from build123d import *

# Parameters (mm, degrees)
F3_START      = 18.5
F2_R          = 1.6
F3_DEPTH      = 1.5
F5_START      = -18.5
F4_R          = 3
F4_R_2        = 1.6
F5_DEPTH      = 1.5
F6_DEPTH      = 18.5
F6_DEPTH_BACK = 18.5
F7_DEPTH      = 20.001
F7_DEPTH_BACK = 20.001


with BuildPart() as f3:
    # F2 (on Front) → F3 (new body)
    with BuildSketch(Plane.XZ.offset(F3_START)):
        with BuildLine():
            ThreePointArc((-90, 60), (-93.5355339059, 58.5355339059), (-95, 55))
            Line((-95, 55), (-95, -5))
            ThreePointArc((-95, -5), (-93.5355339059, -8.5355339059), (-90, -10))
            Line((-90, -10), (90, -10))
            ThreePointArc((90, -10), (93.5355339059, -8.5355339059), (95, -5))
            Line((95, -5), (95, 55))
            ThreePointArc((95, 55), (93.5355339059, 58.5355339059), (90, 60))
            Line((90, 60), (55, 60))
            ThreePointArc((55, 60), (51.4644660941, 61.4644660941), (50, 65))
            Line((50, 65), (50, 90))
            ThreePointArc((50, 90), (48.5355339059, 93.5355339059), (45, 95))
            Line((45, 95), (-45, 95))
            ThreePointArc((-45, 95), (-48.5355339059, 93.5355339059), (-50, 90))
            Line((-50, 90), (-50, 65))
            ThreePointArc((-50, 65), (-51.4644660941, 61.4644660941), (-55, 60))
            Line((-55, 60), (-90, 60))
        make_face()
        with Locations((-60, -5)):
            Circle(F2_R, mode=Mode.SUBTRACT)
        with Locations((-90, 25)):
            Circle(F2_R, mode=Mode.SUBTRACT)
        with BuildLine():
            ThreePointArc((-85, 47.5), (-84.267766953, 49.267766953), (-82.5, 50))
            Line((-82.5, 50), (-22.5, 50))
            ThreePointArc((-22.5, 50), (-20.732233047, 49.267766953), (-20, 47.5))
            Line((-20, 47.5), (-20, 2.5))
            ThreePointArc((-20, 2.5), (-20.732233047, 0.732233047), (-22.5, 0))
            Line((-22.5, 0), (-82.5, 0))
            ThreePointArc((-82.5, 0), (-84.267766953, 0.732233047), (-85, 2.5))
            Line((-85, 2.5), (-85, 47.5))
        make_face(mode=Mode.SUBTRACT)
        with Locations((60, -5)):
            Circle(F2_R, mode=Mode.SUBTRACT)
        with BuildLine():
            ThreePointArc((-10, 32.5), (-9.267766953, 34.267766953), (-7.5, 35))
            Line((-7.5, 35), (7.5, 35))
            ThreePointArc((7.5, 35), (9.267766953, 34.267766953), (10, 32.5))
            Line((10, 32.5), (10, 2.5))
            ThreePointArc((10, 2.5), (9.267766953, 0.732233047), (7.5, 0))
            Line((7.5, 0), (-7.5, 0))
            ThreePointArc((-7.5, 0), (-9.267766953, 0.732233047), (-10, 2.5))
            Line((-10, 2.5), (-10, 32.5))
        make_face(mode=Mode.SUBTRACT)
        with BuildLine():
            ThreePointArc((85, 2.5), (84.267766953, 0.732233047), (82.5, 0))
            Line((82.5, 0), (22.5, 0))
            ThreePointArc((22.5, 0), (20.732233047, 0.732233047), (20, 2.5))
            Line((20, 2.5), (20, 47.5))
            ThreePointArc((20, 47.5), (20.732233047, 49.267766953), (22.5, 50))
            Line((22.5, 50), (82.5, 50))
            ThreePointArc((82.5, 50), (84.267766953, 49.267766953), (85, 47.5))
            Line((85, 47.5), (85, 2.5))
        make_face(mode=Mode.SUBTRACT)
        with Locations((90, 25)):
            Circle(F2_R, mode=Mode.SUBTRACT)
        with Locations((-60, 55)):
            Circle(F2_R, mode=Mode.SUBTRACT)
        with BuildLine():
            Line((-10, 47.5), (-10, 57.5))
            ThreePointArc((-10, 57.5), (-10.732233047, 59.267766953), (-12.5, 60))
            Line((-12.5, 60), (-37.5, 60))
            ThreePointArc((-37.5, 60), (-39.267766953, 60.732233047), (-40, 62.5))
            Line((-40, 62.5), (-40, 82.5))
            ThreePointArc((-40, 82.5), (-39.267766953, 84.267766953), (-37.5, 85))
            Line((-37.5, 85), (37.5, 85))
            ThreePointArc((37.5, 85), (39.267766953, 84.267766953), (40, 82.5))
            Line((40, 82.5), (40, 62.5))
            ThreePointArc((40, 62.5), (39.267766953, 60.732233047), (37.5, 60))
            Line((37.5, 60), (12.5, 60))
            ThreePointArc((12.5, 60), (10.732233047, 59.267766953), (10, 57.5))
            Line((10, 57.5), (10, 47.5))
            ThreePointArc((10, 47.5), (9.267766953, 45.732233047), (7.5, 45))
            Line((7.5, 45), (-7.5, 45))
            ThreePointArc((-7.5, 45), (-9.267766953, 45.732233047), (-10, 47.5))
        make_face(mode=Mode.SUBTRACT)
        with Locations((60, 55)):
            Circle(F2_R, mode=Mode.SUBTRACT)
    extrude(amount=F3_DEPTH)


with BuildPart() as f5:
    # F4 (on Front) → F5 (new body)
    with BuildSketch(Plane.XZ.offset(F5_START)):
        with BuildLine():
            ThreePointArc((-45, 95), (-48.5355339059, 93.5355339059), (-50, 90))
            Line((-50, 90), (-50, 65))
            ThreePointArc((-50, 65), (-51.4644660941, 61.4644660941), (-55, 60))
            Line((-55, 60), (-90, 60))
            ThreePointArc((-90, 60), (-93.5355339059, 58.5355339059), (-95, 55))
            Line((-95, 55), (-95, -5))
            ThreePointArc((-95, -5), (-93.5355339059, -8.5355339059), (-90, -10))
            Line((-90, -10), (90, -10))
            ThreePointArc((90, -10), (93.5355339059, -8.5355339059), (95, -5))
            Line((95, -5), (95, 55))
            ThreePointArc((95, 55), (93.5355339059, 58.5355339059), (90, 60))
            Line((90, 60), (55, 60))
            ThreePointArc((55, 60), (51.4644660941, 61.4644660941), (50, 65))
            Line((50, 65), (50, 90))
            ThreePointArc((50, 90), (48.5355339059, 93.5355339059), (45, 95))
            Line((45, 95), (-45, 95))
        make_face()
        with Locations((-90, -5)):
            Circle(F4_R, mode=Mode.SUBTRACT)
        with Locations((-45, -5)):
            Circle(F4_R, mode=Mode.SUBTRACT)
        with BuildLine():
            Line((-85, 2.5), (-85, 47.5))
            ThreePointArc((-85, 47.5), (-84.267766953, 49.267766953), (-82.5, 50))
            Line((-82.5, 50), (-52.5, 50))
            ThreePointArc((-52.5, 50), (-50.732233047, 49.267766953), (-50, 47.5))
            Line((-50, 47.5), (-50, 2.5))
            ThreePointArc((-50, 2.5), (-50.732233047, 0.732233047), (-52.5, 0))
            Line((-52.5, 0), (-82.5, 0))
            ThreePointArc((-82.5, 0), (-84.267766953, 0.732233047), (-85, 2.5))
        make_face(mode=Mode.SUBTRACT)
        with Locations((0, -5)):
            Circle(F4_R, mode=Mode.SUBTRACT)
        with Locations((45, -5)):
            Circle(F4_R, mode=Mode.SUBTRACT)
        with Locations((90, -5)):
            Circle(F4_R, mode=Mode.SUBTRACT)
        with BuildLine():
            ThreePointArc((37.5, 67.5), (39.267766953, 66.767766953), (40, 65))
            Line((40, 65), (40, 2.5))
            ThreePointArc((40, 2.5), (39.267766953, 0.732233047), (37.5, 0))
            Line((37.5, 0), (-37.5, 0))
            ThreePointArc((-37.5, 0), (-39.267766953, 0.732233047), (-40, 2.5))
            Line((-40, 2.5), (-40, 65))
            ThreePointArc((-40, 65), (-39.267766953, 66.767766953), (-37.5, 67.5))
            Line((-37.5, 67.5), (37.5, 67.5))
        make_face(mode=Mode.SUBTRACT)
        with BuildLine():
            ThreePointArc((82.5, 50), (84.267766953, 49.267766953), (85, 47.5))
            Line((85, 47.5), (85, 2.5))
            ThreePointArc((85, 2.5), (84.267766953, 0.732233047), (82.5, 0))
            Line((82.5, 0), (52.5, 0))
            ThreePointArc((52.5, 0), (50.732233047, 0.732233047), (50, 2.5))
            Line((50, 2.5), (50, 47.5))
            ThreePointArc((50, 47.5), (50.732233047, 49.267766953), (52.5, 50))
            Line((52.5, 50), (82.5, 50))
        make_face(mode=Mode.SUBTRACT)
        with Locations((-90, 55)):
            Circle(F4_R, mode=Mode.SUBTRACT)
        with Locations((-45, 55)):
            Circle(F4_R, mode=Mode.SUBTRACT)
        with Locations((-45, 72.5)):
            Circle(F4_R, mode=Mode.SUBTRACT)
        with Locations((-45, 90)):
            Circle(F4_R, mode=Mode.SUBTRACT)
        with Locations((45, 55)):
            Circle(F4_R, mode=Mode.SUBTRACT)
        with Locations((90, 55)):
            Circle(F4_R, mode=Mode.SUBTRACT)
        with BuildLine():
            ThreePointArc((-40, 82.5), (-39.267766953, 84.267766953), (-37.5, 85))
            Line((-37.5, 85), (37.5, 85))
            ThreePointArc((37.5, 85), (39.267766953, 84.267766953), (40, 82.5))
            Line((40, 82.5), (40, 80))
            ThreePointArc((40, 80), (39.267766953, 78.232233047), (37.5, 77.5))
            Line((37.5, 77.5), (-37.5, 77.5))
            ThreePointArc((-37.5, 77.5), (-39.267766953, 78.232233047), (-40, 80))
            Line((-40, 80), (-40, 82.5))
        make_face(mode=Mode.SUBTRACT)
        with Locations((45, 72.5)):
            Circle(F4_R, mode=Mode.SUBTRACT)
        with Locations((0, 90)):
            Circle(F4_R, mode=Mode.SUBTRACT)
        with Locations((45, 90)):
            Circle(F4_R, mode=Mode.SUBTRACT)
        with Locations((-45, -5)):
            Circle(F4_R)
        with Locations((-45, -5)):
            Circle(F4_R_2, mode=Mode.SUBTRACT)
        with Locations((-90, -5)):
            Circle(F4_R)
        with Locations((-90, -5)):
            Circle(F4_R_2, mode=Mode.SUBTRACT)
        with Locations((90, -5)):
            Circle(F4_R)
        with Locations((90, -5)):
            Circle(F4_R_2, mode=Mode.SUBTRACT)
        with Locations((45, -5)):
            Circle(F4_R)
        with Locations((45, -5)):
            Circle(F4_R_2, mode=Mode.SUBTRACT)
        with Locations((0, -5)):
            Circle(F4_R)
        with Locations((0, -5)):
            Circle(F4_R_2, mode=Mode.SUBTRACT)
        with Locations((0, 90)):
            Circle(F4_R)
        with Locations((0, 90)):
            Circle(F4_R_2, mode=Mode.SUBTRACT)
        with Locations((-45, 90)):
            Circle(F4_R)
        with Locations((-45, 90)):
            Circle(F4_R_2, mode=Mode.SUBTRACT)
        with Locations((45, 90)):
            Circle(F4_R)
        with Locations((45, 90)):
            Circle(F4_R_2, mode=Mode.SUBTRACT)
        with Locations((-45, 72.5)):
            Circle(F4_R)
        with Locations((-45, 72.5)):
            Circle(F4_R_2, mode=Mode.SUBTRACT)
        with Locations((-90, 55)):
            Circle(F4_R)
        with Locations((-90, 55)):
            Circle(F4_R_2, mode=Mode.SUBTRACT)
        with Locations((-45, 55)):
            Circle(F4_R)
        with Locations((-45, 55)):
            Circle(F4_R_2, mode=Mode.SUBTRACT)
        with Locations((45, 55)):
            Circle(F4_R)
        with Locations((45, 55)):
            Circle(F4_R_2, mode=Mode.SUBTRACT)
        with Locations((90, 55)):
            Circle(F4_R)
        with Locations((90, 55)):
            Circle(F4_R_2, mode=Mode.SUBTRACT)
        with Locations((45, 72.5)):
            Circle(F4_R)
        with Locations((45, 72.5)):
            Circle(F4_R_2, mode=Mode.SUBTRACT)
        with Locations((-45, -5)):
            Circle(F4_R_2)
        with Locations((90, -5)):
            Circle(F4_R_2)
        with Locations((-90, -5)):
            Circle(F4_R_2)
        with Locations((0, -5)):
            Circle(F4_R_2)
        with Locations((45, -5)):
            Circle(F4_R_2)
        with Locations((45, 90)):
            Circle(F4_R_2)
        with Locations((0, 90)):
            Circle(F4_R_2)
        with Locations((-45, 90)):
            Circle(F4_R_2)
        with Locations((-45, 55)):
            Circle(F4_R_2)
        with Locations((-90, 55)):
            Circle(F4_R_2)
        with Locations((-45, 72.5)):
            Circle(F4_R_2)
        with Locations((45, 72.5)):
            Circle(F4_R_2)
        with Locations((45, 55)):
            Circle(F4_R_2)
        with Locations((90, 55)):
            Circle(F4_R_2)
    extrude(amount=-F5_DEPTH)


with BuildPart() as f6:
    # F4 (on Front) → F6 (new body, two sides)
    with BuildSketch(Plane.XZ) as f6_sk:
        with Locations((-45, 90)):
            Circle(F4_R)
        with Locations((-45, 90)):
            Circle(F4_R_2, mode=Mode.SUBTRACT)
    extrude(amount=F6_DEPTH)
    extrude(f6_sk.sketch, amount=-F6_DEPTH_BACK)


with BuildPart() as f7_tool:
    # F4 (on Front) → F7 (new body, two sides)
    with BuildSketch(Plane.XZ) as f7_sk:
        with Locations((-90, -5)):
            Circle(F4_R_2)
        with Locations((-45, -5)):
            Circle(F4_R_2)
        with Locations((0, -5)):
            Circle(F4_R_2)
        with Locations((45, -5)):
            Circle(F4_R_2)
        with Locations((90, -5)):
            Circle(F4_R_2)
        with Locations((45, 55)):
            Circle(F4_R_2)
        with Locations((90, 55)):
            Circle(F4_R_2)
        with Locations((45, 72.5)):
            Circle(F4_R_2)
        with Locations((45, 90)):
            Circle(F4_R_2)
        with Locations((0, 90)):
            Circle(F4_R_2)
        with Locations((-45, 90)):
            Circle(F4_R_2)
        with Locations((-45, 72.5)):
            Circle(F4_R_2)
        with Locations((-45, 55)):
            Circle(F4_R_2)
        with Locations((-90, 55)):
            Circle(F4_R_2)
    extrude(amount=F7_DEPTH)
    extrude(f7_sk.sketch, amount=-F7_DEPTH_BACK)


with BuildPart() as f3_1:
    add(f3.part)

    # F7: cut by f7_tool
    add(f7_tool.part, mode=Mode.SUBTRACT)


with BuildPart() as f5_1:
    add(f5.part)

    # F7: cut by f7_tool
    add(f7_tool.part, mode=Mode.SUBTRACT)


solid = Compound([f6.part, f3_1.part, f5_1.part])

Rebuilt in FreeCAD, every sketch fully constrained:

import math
import FreeCAD as App
import Part
import Sketcher

V = App.Vector
Q = App.Units.Quantity

doc = App.newDocument("Part")
body = doc.addObject("PartDesign::Body", "Body")

# Sketch on XZ plane
sketch1 = doc.addObject("Sketcher::SketchObject", "Sketch")
body.addObject(sketch1)
sketch1.AttachmentSupport = (doc.XZ_Plane, [""])
sketch1.MapMode = "FlatFace"
sketch1.AttachmentOffset = App.Placement(V(0, 0, 18.5), App.Rotation())
sketch1.addGeometry(Part.ArcOfCircle(Part.Circle(V(-90, 55, 0), V(0, 0, 1), 5), math.radians(90), math.radians(180)), False)
sketch1.addGeometry(Part.LineSegment(V(-95, 55, 0), V(-95, -5, 0)), False)
sketch1.addGeometry(Part.ArcOfCircle(Part.Circle(V(-90, -5, 0), V(0, 0, 1), 5), math.radians(180), math.radians(270)), False)
sketch1.addGeometry(Part.LineSegment(V(-90, -10, 0), V(90, -10, 0)), False)
sketch1.addGeometry(Part.ArcOfCircle(Part.Circle(V(90, -5, 0), V(0, 0, 1), 5), math.radians(-90), math.radians(0)), False)
sketch1.addGeometry(Part.LineSegment(V(95, -5, 0), V(95, 55, 0)), False)
sketch1.addGeometry(Part.ArcOfCircle(Part.Circle(V(90, 55, 0), V(0, 0, 1), 5), math.radians(0), math.radians(90)), False)
sketch1.addGeometry(Part.LineSegment(V(90, 60, 0), V(55, 60, 0)), False)
sketch1.addGeometry(Part.ArcOfCircle(Part.Circle(V(55, 65, 0), V(0, 0, 1), 5), math.radians(180), math.radians(270)), False)
sketch1.addGeometry(Part.LineSegment(V(50, 65, 0), V(50, 90, 0)), False)
sketch1.addGeometry(Part.ArcOfCircle(Part.Circle(V(45, 90, 0), V(0, 0, 1), 5), math.radians(0), math.radians(90)), False)
sketch1.addGeometry(Part.LineSegment(V(45, 95, 0), V(-45, 95, 0)), False)
sketch1.addGeometry(Part.ArcOfCircle(Part.Circle(V(-45, 90, 0), V(0, 0, 1), 5), math.radians(90), math.radians(180)), False)
sketch1.addGeometry(Part.LineSegment(V(-50, 90, 0), V(-50, 65, 0)), False)
sketch1.addGeometry(Part.ArcOfCircle(Part.Circle(V(-55, 65, 0), V(0, 0, 1), 5), math.radians(-90), math.radians(0)), False)
sketch1.addGeometry(Part.LineSegment(V(-55, 60, 0), V(-90, 60, 0)), False)
sketch1.addGeometry(Part.Circle(V(-60, -5, 0), V(0, 0, 1), 1.6), False)
sketch1.addGeometry(Part.Circle(V(-90, 25, 0), V(0, 0, 1), 1.6), False)
sketch1.addGeometry(Part.LineSegment(V(-85, 2.5, 0), V(-85, 47.5, 0)), False)
sketch1.addGeometry(Part.ArcOfCircle(Part.Circle(V(-82.5, 47.5, 0), V(0, 0, 1), 2.5), math.radians(90), math.radians(180)), False)
sketch1.addGeometry(Part.LineSegment(V(-82.5, 50, 0), V(-22.5, 50, 0)), False)
sketch1.addGeometry(Part.ArcOfCircle(Part.Circle(V(-22.5, 47.5, 0), V(0, 0, 1), 2.5), math.radians(0), math.radians(90)), False)
sketch1.addGeometry(Part.LineSegment(V(-20, 47.5, 0), V(-20, 2.5, 0)), False)
sketch1.addGeometry(Part.ArcOfCircle(Part.Circle(V(-22.5, 2.5, 0), V(0, 0, 1), 2.5), math.radians(-90), math.radians(0)), False)
sketch1.addGeometry(Part.LineSegment(V(-22.5, 0, 0), V(-82.5, 0, 0)), False)
sketch1.addGeometry(Part.ArcOfCircle(Part.Circle(V(-82.5, 2.5, 0), V(0, 0, 1), 2.5), math.radians(180), math.radians(270)), False)
sketch1.addGeometry(Part.Circle(V(60, -5, 0), V(0, 0, 1), 1.6), False)
sketch1.addGeometry(Part.LineSegment(V(-10, 2.5, 0), V(-10, 32.5, 0)), False)
sketch1.addGeometry(Part.ArcOfCircle(Part.Circle(V(-7.5, 32.5, 0), V(0, 0, 1), 2.5), math.radians(90), math.radians(180)), False)
sketch1.addGeometry(Part.LineSegment(V(-7.5, 35, 0), V(7.5, 35, 0)), False)
sketch1.addGeometry(Part.ArcOfCircle(Part.Circle(V(7.5, 32.5, 0), V(0, 0, 1), 2.5), math.radians(0), math.radians(90)), False)
sketch1.addGeometry(Part.LineSegment(V(10, 32.5, 0), V(10, 2.5, 0)), False)
sketch1.addGeometry(Part.ArcOfCircle(Part.Circle(V(7.5, 2.5, 0), V(0, 0, 1), 2.5), math.radians(-90), math.radians(0)), False)
sketch1.addGeometry(Part.LineSegment(V(7.5, 0, 0), V(-7.5, 0, 0)), False)
sketch1.addGeometry(Part.ArcOfCircle(Part.Circle(V(-7.5, 2.5, 0), V(0, 0, 1), 2.5), math.radians(180), math.radians(270)), False)
sketch1.addGeometry(Part.LineSegment(V(85, 47.5, 0), V(85, 2.5, 0)), False)
sketch1.addGeometry(Part.ArcOfCircle(Part.Circle(V(82.5, 2.5, 0), V(0, 0, 1), 2.5), math.radians(-90), math.radians(0)), False)
sketch1.addGeometry(Part.LineSegment(V(82.5, 0, 0), V(22.5, 0, 0)), False)
sketch1.addGeometry(Part.ArcOfCircle(Part.Circle(V(22.5, 2.5, 0), V(0, 0, 1), 2.5), math.radians(180), math.radians(270)), False)
sketch1.addGeometry(Part.LineSegment(V(20, 2.5, 0), V(20, 47.5, 0)), False)
sketch1.addGeometry(Part.ArcOfCircle(Part.Circle(V(22.5, 47.5, 0), V(0, 0, 1), 2.5), math.radians(90), math.radians(180)), False)
sketch1.addGeometry(Part.LineSegment(V(22.5, 50, 0), V(82.5, 50, 0)), False)
sketch1.addGeometry(Part.ArcOfCircle(Part.Circle(V(82.5, 47.5, 0), V(0, 0, 1), 2.5), math.radians(0), math.radians(90)), False)
sketch1.addGeometry(Part.Circle(V(90, 25, 0), V(0, 0, 1), 1.6), False)
sketch1.addGeometry(Part.Circle(V(-60, 55, 0), V(0, 0, 1), 1.6), False)
sketch1.addGeometry(Part.Circle(V(60, 55, 0), V(0, 0, 1), 1.6), False)
sketch1.addGeometry(Part.ArcOfCircle(Part.Circle(V(-7.5, 47.5, 0), V(0, 0, 1), 2.5), math.radians(180), math.radians(270)), False)
sketch1.addGeometry(Part.LineSegment(V(-10, 47.5, 0), V(-10, 57.5, 0)), False)
sketch1.addGeometry(Part.ArcOfCircle(Part.Circle(V(-12.5, 57.5, 0), V(0, 0, 1), 2.5), math.radians(0), math.radians(90)), False)
sketch1.addGeometry(Part.LineSegment(V(-12.5, 60, 0), V(-37.5, 60, 0)), False)
sketch1.addGeometry(Part.ArcOfCircle(Part.Circle(V(-37.5, 62.5, 0), V(0, 0, 1), 2.5), math.radians(180), math.radians(270)), False)
sketch1.addGeometry(Part.LineSegment(V(-40, 62.5, 0), V(-40, 82.5, 0)), False)
sketch1.addGeometry(Part.ArcOfCircle(Part.Circle(V(-37.5, 82.5, 0), V(0, 0, 1), 2.5), math.radians(90), math.radians(180)), False)
sketch1.addGeometry(Part.LineSegment(V(-37.5, 85, 0), V(37.5, 85, 0)), False)
sketch1.addGeometry(Part.ArcOfCircle(Part.Circle(V(37.5, 82.5, 0), V(0, 0, 1), 2.5), math.radians(0), math.radians(90)), False)
sketch1.addGeometry(Part.LineSegment(V(40, 82.5, 0), V(40, 62.5, 0)), False)
sketch1.addGeometry(Part.ArcOfCircle(Part.Circle(V(37.5, 62.5, 0), V(0, 0, 1), 2.5), math.radians(-90), math.radians(0)), False)
sketch1.addGeometry(Part.LineSegment(V(37.5, 60, 0), V(12.5, 60, 0)), False)
sketch1.addGeometry(Part.ArcOfCircle(Part.Circle(V(12.5, 57.5, 0), V(0, 0, 1), 2.5), math.radians(90), math.radians(180)), False)
sketch1.addGeometry(Part.LineSegment(V(10, 57.5, 0), V(10, 47.5, 0)), False)
sketch1.addGeometry(Part.ArcOfCircle(Part.Circle(V(7.5, 47.5, 0), V(0, 0, 1), 2.5), math.radians(-90), math.radians(0)), False)
sketch1.addGeometry(Part.LineSegment(V(7.5, 45, 0), V(-7.5, 45, 0)), False)
sketch1.addConstraint(Sketcher.Constraint("Tangent", 0, 2, 1, 1))
sketch1.addConstraint(Sketcher.Constraint("Tangent", 1, 2, 2, 1))
sketch1.addConstraint(Sketcher.Constraint("Tangent", 2, 2, 3, 1))
sketch1.addConstraint(Sketcher.Constraint("Tangent", 3, 2, 4, 1))
sketch1.addConstraint(Sketcher.Constraint("Tangent", 4, 2, 5, 1))
sketch1.addConstraint(Sketcher.Constraint("Tangent", 5, 2, 6, 1))
sketch1.addConstraint(Sketcher.Constraint("Tangent", 6, 2, 7, 1))
sketch1.addConstraint(Sketcher.Constraint("Tangent", 7, 2, 8, 2))
sketch1.addConstraint(Sketcher.Constraint("Tangent", 8, 1, 9, 1))
sketch1.addConstraint(Sketcher.Constraint("Tangent", 9, 2, 10, 1))
sketch1.addConstraint(Sketcher.Constraint("Tangent", 10, 2, 11, 1))
sketch1.addConstraint(Sketcher.Constraint("Tangent", 11, 2, 12, 1))
sketch1.addConstraint(Sketcher.Constraint("Tangent", 12, 2, 13, 1))
sketch1.addConstraint(Sketcher.Constraint("Tangent", 13, 2, 14, 2))
sketch1.addConstraint(Sketcher.Constraint("Tangent", 14, 1, 15, 1))
sketch1.addConstraint(Sketcher.Constraint("Tangent", 15, 2, 0, 1))
sketch1.addConstraint(Sketcher.Constraint("Tangent", 18, 2, 19, 2))
sketch1.addConstraint(Sketcher.Constraint("Tangent", 19, 1, 20, 1))
sketch1.addConstraint(Sketcher.Constraint("Tangent", 20, 2, 21, 2))
sketch1.addConstraint(Sketcher.Constraint("Tangent", 21, 1, 22, 1))
sketch1.addConstraint(Sketcher.Constraint("Tangent", 22, 2, 23, 2))
sketch1.addConstraint(Sketcher.Constraint("Tangent", 23, 1, 24, 1))
sketch1.addConstraint(Sketcher.Constraint("Tangent", 24, 2, 25, 2))
sketch1.addConstraint(Sketcher.Constraint("Tangent", 25, 1, 18, 1))
sketch1.addConstraint(Sketcher.Constraint("Tangent", 27, 2, 28, 2))
sketch1.addConstraint(Sketcher.Constraint("Tangent", 28, 1, 29, 1))
sketch1.addConstraint(Sketcher.Constraint("Tangent", 29, 2, 30, 2))
sketch1.addConstraint(Sketcher.Constraint("Tangent", 30, 1, 31, 1))
sketch1.addConstraint(Sketcher.Constraint("Tangent", 31, 2, 32, 2))
sketch1.addConstraint(Sketcher.Constraint("Tangent", 32, 1, 33, 1))
sketch1.addConstraint(Sketcher.Constraint("Tangent", 33, 2, 34, 2))
sketch1.addConstraint(Sketcher.Constraint("Tangent", 34, 1, 27, 1))
sketch1.addConstraint(Sketcher.Constraint("Tangent", 35, 2, 36, 2))
sketch1.addConstraint(Sketcher.Constraint("Tangent", 36, 1, 37, 1))
sketch1.addConstraint(Sketcher.Constraint("Tangent", 37, 2, 38, 2))
sketch1.addConstraint(Sketcher.Constraint("Tangent", 38, 1, 39, 1))
sketch1.addConstraint(Sketcher.Constraint("Tangent", 39, 2, 40, 2))
sketch1.addConstraint(Sketcher.Constraint("Tangent", 40, 1, 41, 1))
sketch1.addConstraint(Sketcher.Constraint("Tangent", 41, 2, 42, 2))
sketch1.addConstraint(Sketcher.Constraint("Tangent", 42, 1, 35, 1))
sketch1.addConstraint(Sketcher.Constraint("Tangent", 46, 1, 47, 1))
sketch1.addConstraint(Sketcher.Constraint("Tangent", 47, 2, 48, 1))
sketch1.addConstraint(Sketcher.Constraint("Tangent", 48, 2, 49, 1))
sketch1.addConstraint(Sketcher.Constraint("Tangent", 49, 2, 50, 2))
sketch1.addConstraint(Sketcher.Constraint("Tangent", 50, 1, 51, 1))
sketch1.addConstraint(Sketcher.Constraint("Tangent", 51, 2, 52, 2))
sketch1.addConstraint(Sketcher.Constraint("Tangent", 52, 1, 53, 1))
sketch1.addConstraint(Sketcher.Constraint("Tangent", 53, 2, 54, 2))
sketch1.addConstraint(Sketcher.Constraint("Tangent", 54, 1, 55, 1))
sketch1.addConstraint(Sketcher.Constraint("Tangent", 55, 2, 56, 2))
sketch1.addConstraint(Sketcher.Constraint("Tangent", 56, 1, 57, 1))
sketch1.addConstraint(Sketcher.Constraint("Tangent", 57, 2, 58, 1))
sketch1.addConstraint(Sketcher.Constraint("Tangent", 58, 2, 59, 1))
sketch1.addConstraint(Sketcher.Constraint("Tangent", 59, 2, 60, 2))
sketch1.addConstraint(Sketcher.Constraint("Tangent", 60, 1, 61, 1))
sketch1.addConstraint(Sketcher.Constraint("Tangent", 61, 2, 46, 2))
sketch1.addConstraint(Sketcher.Constraint("Vertical", 1))
sketch1.addConstraint(Sketcher.Constraint("Horizontal", 3))
sketch1.addConstraint(Sketcher.Constraint("Vertical", 5))
sketch1.addConstraint(Sketcher.Constraint("Horizontal", 7))
sketch1.addConstraint(Sketcher.Constraint("Vertical", 9))
sketch1.addConstraint(Sketcher.Constraint("Horizontal", 11))
sketch1.addConstraint(Sketcher.Constraint("Vertical", 13))
sketch1.addConstraint(Sketcher.Constraint("Horizontal", 15))
sketch1.addConstraint(Sketcher.Constraint("Vertical", 18))
sketch1.addConstraint(Sketcher.Constraint("Horizontal", 20))
sketch1.addConstraint(Sketcher.Constraint("Vertical", 22))
sketch1.addConstraint(Sketcher.Constraint("Horizontal", 24))
sketch1.addConstraint(Sketcher.Constraint("Vertical", 27))
sketch1.addConstraint(Sketcher.Constraint("Horizontal", 29))
sketch1.addConstraint(Sketcher.Constraint("Vertical", 31))
sketch1.addConstraint(Sketcher.Constraint("Horizontal", 33))
sketch1.addConstraint(Sketcher.Constraint("Vertical", 35))
sketch1.addConstraint(Sketcher.Constraint("Horizontal", 37))
sketch1.addConstraint(Sketcher.Constraint("Vertical", 39))
sketch1.addConstraint(Sketcher.Constraint("Horizontal", 41))
sketch1.addConstraint(Sketcher.Constraint("Vertical", 47))
sketch1.addConstraint(Sketcher.Constraint("Horizontal", 49))
sketch1.addConstraint(Sketcher.Constraint("Vertical", 51))
sketch1.addConstraint(Sketcher.Constraint("Horizontal", 53))
sketch1.addConstraint(Sketcher.Constraint("Vertical", 55))
sketch1.addConstraint(Sketcher.Constraint("Horizontal", 57))
sketch1.addConstraint(Sketcher.Constraint("Vertical", 59))
sketch1.addConstraint(Sketcher.Constraint("Horizontal", 61))
sketch1.addConstraint(Sketcher.Constraint("Equal", 0, 2))
sketch1.addConstraint(Sketcher.Constraint("Equal", 2, 4))
sketch1.addConstraint(Sketcher.Constraint("Equal", 4, 6))
sketch1.addConstraint(Sketcher.Constraint("Equal", 6, 8))
sketch1.addConstraint(Sketcher.Constraint("Equal", 8, 10))
sketch1.addConstraint(Sketcher.Constraint("Equal", 10, 12))
sketch1.addConstraint(Sketcher.Constraint("Equal", 12, 14))
sketch1.addConstraint(Sketcher.Constraint("Equal", 16, 17))
sketch1.addConstraint(Sketcher.Constraint("Equal", 19, 21))
sketch1.addConstraint(Sketcher.Constraint("Equal", 21, 23))
sketch1.addConstraint(Sketcher.Constraint("Equal", 23, 25))
sketch1.addConstraint(Sketcher.Constraint("Equal", 17, 26))
sketch1.addConstraint(Sketcher.Constraint("Equal", 25, 28))
sketch1.addConstraint(Sketcher.Constraint("Equal", 28, 30))
sketch1.addConstraint(Sketcher.Constraint("Equal", 30, 32))
sketch1.addConstraint(Sketcher.Constraint("Equal", 32, 34))
sketch1.addConstraint(Sketcher.Constraint("Equal", 34, 36))
sketch1.addConstraint(Sketcher.Constraint("Equal", 36, 38))
sketch1.addConstraint(Sketcher.Constraint("Equal", 38, 40))
sketch1.addConstraint(Sketcher.Constraint("Equal", 40, 42))
sketch1.addConstraint(Sketcher.Constraint("Equal", 26, 43))
sketch1.addConstraint(Sketcher.Constraint("Equal", 43, 44))
sketch1.addConstraint(Sketcher.Constraint("Equal", 44, 45))
sketch1.addConstraint(Sketcher.Constraint("Equal", 42, 46))
sketch1.addConstraint(Sketcher.Constraint("Equal", 46, 48))
sketch1.addConstraint(Sketcher.Constraint("Equal", 48, 50))
sketch1.addConstraint(Sketcher.Constraint("Equal", 50, 52))
sketch1.addConstraint(Sketcher.Constraint("Equal", 52, 54))
sketch1.addConstraint(Sketcher.Constraint("Equal", 54, 56))
sketch1.addConstraint(Sketcher.Constraint("Equal", 56, 58))
sketch1.addConstraint(Sketcher.Constraint("Equal", 58, 60))
sketch1.addConstraint(Sketcher.Constraint("Symmetric", 32, 1, 33, 2, -1, 1))
sketch1.addConstraint(Sketcher.Constraint("Symmetric", 24, 2, 36, 1, -1, 1))
sketch1.addConstraint(Sketcher.Constraint("Symmetric", 0, 3, 6, 3, -2))
sketch1.addConstraint(Sketcher.Constraint("Symmetric", 16, 3, 26, 3, -2))
sketch1.addConstraint(Sketcher.Constraint("Symmetric", 23, 3, 38, 3, -2))
sketch1.addConstraint(Sketcher.Constraint("Symmetric", 17, 3, 43, 3, -2))
sketch1.addConstraint(Sketcher.Constraint("Symmetric", 44, 3, 45, 3, -2))
sketch1.addConstraint(Sketcher.Constraint("Symmetric", 50, 3, 56, 3, -2))
sketch1.addConstraint(Sketcher.Constraint("Horizontal", 4, 3, 16, 3))
sketch1.addConstraint(Sketcher.Constraint("Horizontal", 21, 3, 40, 3))
sketch1.addConstraint(Sketcher.Constraint("Horizontal", 6, 3, 44, 3))
sketch1.addConstraint(Sketcher.Constraint("Horizontal", 42, 3, 46, 3))
sketch1.addConstraint(Sketcher.Constraint("Horizontal", 15, 2, 48, 2))
sketch1.addConstraint(Sketcher.Constraint("Vertical", 2, 3, 17, 3))
sketch1.addConstraint(Sketcher.Constraint("Vertical", 16, 3, 44, 3))
sketch1.addConstraint(Sketcher.Constraint("Vertical", 34, 3, 46, 3))
sketch1.addConstraint(Sketcher.Constraint("Vertical", 32, 3, 60, 3))
sketch1.addConstraint(Sketcher.Constraint("Equal", 7, 15))
sketch1.addConstraint(Sketcher.Constraint("Equal", 41, 1))
sketch1.addConstraint(Sketcher.Constraint("Equal", 57, 9))
sketch1.addConstraint(Sketcher.Constraint("Radius", 0, Q("5 mm")))
sketch1.addConstraint(Sketcher.Constraint("Diameter", 16, Q("3.2 mm")))
sketch1.addConstraint(Sketcher.Constraint("Radius", 19, Q("2.5 mm")))
sketch1.addConstraint(Sketcher.Constraint("DistanceX", 3, 1, 3, 2, Q("180 mm")))
sketch1.addConstraint(Sketcher.Constraint("DistanceX", 7, 2, 7, 1, Q("35 mm")))
sketch1.addConstraint(Sketcher.Constraint("DistanceX", 20, 1, 20, 2, Q("60 mm")))
sketch1.addConstraint(Sketcher.Constraint("DistanceX", 29, 1, 29, 2, Q("15 mm")))
sketch1.addConstraint(Sketcher.Constraint("DistanceX", 49, 2, 49, 1, Q("25 mm")))
sketch1.addConstraint(Sketcher.Constraint("DistanceY", 18, 1, 18, 2, Q("45 mm")))
sketch1.addConstraint(Sketcher.Constraint("DistanceY", 27, 1, 27, 2, Q("30 mm")))
sketch1.addConstraint(Sketcher.Constraint("DistanceY", 47, 1, 47, 2, Q("10 mm")))
sketch1.addConstraint(Sketcher.Constraint("DistanceY", 51, 1, 51, 2, Q("20 mm")))
sketch1.addConstraint(Sketcher.Constraint("DistanceX", 16, 3, -1, 1, Q("60 mm")))
sketch1.addConstraint(Sketcher.Constraint("DistanceY", -1, 1, 17, 3, Q("25 mm")))
sketch1.addConstraint(Sketcher.Constraint("DistanceX", 18, 2, -1, 1, Q("85 mm")))
pad1 = doc.addObject("PartDesign::Pad", "Pad")
body.addObject(pad1)
pad1.Profile = sketch1
pad1.Length = 1.5
body2 = doc.addObject("PartDesign::Body", "Body001")

# Sketch on XZ plane
sketch2 = doc.addObject("Sketcher::SketchObject", "Sketch001")
body2.addObject(sketch2)
sketch2.AttachmentSupport = (doc.getObject("XZ_Plane001"), [""])
sketch2.MapMode = "FlatFace"
sketch2.AttachmentOffset = App.Placement(V(0, 0, -18.5), App.Rotation())
sketch2.addGeometry(Part.ArcOfCircle(Part.Circle(V(-45, 90, 0), V(0, 0, 1), 5), math.radians(90), math.radians(180)), False)
sketch2.addGeometry(Part.LineSegment(V(-50, 90, 0), V(-50, 65, 0)), False)
sketch2.addGeometry(Part.ArcOfCircle(Part.Circle(V(-55, 65, 0), V(0, 0, 1), 5), math.radians(-90), math.radians(0)), False)
sketch2.addGeometry(Part.LineSegment(V(-55, 60, 0), V(-90, 60, 0)), False)
sketch2.addGeometry(Part.ArcOfCircle(Part.Circle(V(-90, 55, 0), V(0, 0, 1), 5), math.radians(90), math.radians(180)), False)
sketch2.addGeometry(Part.LineSegment(V(-95, 55, 0), V(-95, -5, 0)), False)
sketch2.addGeometry(Part.ArcOfCircle(Part.Circle(V(-90, -5, 0), V(0, 0, 1), 5), math.radians(180), math.radians(270)), False)
sketch2.addGeometry(Part.LineSegment(V(-90, -10, 0), V(90, -10, 0)), False)
sketch2.addGeometry(Part.ArcOfCircle(Part.Circle(V(90, -5, 0), V(0, 0, 1), 5), math.radians(-90), math.radians(0)), False)
sketch2.addGeometry(Part.LineSegment(V(95, -5, 0), V(95, 55, 0)), False)
sketch2.addGeometry(Part.ArcOfCircle(Part.Circle(V(90, 55, 0), V(0, 0, 1), 5), math.radians(0), math.radians(90)), False)
sketch2.addGeometry(Part.LineSegment(V(90, 60, 0), V(55, 60, 0)), False)
sketch2.addGeometry(Part.ArcOfCircle(Part.Circle(V(55, 65, 0), V(0, 0, 1), 5), math.radians(180), math.radians(270)), False)
sketch2.addGeometry(Part.LineSegment(V(50, 65, 0), V(50, 90, 0)), False)
sketch2.addGeometry(Part.ArcOfCircle(Part.Circle(V(45, 90, 0), V(0, 0, 1), 5), math.radians(0), math.radians(90)), False)
sketch2.addGeometry(Part.LineSegment(V(45, 95, 0), V(-45, 95, 0)), False)
sketch2.addGeometry(Part.ArcOfCircle(Part.Circle(V(-82.5, 2.5, 0), V(0, 0, 1), 2.5), math.radians(180), math.radians(270)), False)
sketch2.addGeometry(Part.LineSegment(V(-85, 2.5, 0), V(-85, 47.5, 0)), False)
sketch2.addGeometry(Part.ArcOfCircle(Part.Circle(V(-82.5, 47.5, 0), V(0, 0, 1), 2.5), math.radians(90), math.radians(180)), False)
sketch2.addGeometry(Part.LineSegment(V(-82.5, 50, 0), V(-52.5, 50, 0)), False)
sketch2.addGeometry(Part.ArcOfCircle(Part.Circle(V(-52.5, 47.5, 0), V(0, 0, 1), 2.5), math.radians(0), math.radians(90)), False)
sketch2.addGeometry(Part.LineSegment(V(-50, 47.5, 0), V(-50, 2.5, 0)), False)
sketch2.addGeometry(Part.ArcOfCircle(Part.Circle(V(-52.5, 2.5, 0), V(0, 0, 1), 2.5), math.radians(-90), math.radians(0)), False)
sketch2.addGeometry(Part.LineSegment(V(-52.5, 0, 0), V(-82.5, 0, 0)), False)
sketch2.addGeometry(Part.LineSegment(V(-37.5, 67.5, 0), V(37.5, 67.5, 0)), False)
sketch2.addGeometry(Part.ArcOfCircle(Part.Circle(V(37.5, 65, 0), V(0, 0, 1), 2.5), math.radians(0), math.radians(90)), False)
sketch2.addGeometry(Part.LineSegment(V(40, 65, 0), V(40, 2.5, 0)), False)
sketch2.addGeometry(Part.ArcOfCircle(Part.Circle(V(37.5, 2.5, 0), V(0, 0, 1), 2.5), math.radians(-90), math.radians(0)), False)
sketch2.addGeometry(Part.LineSegment(V(37.5, 0, 0), V(-37.5, 0, 0)), False)
sketch2.addGeometry(Part.ArcOfCircle(Part.Circle(V(-37.5, 2.5, 0), V(0, 0, 1), 2.5), math.radians(180), math.radians(270)), False)
sketch2.addGeometry(Part.LineSegment(V(-40, 2.5, 0), V(-40, 65, 0)), False)
sketch2.addGeometry(Part.ArcOfCircle(Part.Circle(V(-37.5, 65, 0), V(0, 0, 1), 2.5), math.radians(90), math.radians(180)), False)
sketch2.addGeometry(Part.LineSegment(V(52.5, 50, 0), V(82.5, 50, 0)), False)
sketch2.addGeometry(Part.ArcOfCircle(Part.Circle(V(82.5, 47.5, 0), V(0, 0, 1), 2.5), math.radians(0), math.radians(90)), False)
sketch2.addGeometry(Part.LineSegment(V(85, 47.5, 0), V(85, 2.5, 0)), False)
sketch2.addGeometry(Part.ArcOfCircle(Part.Circle(V(82.5, 2.5, 0), V(0, 0, 1), 2.5), math.radians(-90), math.radians(0)), False)
sketch2.addGeometry(Part.LineSegment(V(82.5, 0, 0), V(52.5, 0, 0)), False)
sketch2.addGeometry(Part.ArcOfCircle(Part.Circle(V(52.5, 2.5, 0), V(0, 0, 1), 2.5), math.radians(180), math.radians(270)), False)
sketch2.addGeometry(Part.LineSegment(V(50, 2.5, 0), V(50, 47.5, 0)), False)
sketch2.addGeometry(Part.ArcOfCircle(Part.Circle(V(52.5, 47.5, 0), V(0, 0, 1), 2.5), math.radians(90), math.radians(180)), False)
sketch2.addGeometry(Part.LineSegment(V(-40, 80, 0), V(-40, 82.5, 0)), False)
sketch2.addGeometry(Part.ArcOfCircle(Part.Circle(V(-37.5, 82.5, 0), V(0, 0, 1), 2.5), math.radians(90), math.radians(180)), False)
sketch2.addGeometry(Part.LineSegment(V(-37.5, 85, 0), V(37.5, 85, 0)), False)
sketch2.addGeometry(Part.ArcOfCircle(Part.Circle(V(37.5, 82.5, 0), V(0, 0, 1), 2.5), math.radians(0), math.radians(90)), False)
sketch2.addGeometry(Part.LineSegment(V(40, 82.5, 0), V(40, 80, 0)), False)
sketch2.addGeometry(Part.ArcOfCircle(Part.Circle(V(37.5, 80, 0), V(0, 0, 1), 2.5), math.radians(-90), math.radians(0)), False)
sketch2.addGeometry(Part.LineSegment(V(37.5, 77.5, 0), V(-37.5, 77.5, 0)), False)
sketch2.addGeometry(Part.ArcOfCircle(Part.Circle(V(-37.5, 80, 0), V(0, 0, 1), 2.5), math.radians(180), math.radians(270)), False)
sketch2.addConstraint(Sketcher.Constraint("Tangent", 0, 2, 1, 1))
sketch2.addConstraint(Sketcher.Constraint("Tangent", 1, 2, 2, 2))
sketch2.addConstraint(Sketcher.Constraint("Tangent", 2, 1, 3, 1))
sketch2.addConstraint(Sketcher.Constraint("Tangent", 3, 2, 4, 1))
sketch2.addConstraint(Sketcher.Constraint("Tangent", 4, 2, 5, 1))
sketch2.addConstraint(Sketcher.Constraint("Tangent", 5, 2, 6, 1))
sketch2.addConstraint(Sketcher.Constraint("Tangent", 6, 2, 7, 1))
sketch2.addConstraint(Sketcher.Constraint("Tangent", 7, 2, 8, 1))
sketch2.addConstraint(Sketcher.Constraint("Tangent", 8, 2, 9, 1))
sketch2.addConstraint(Sketcher.Constraint("Tangent", 9, 2, 10, 1))
sketch2.addConstraint(Sketcher.Constraint("Tangent", 10, 2, 11, 1))
sketch2.addConstraint(Sketcher.Constraint("Tangent", 11, 2, 12, 2))
sketch2.addConstraint(Sketcher.Constraint("Tangent", 12, 1, 13, 1))
sketch2.addConstraint(Sketcher.Constraint("Tangent", 13, 2, 14, 1))
sketch2.addConstraint(Sketcher.Constraint("Tangent", 14, 2, 15, 1))
sketch2.addConstraint(Sketcher.Constraint("Tangent", 15, 2, 0, 1))
sketch2.addConstraint(Sketcher.Constraint("Tangent", 16, 1, 17, 1))
sketch2.addConstraint(Sketcher.Constraint("Tangent", 17, 2, 18, 2))
sketch2.addConstraint(Sketcher.Constraint("Tangent", 18, 1, 19, 1))
sketch2.addConstraint(Sketcher.Constraint("Tangent", 19, 2, 20, 2))
sketch2.addConstraint(Sketcher.Constraint("Tangent", 20, 1, 21, 1))
sketch2.addConstraint(Sketcher.Constraint("Tangent", 21, 2, 22, 2))
sketch2.addConstraint(Sketcher.Constraint("Tangent", 22, 1, 23, 1))
sketch2.addConstraint(Sketcher.Constraint("Tangent", 23, 2, 16, 2))
sketch2.addConstraint(Sketcher.Constraint("Tangent", 24, 2, 25, 2))
sketch2.addConstraint(Sketcher.Constraint("Tangent", 25, 1, 26, 1))
sketch2.addConstraint(Sketcher.Constraint("Tangent", 26, 2, 27, 2))
sketch2.addConstraint(Sketcher.Constraint("Tangent", 27, 1, 28, 1))
sketch2.addConstraint(Sketcher.Constraint("Tangent", 28, 2, 29, 2))
sketch2.addConstraint(Sketcher.Constraint("Tangent", 29, 1, 30, 1))
sketch2.addConstraint(Sketcher.Constraint("Tangent", 30, 2, 31, 2))
sketch2.addConstraint(Sketcher.Constraint("Tangent", 31, 1, 24, 1))
sketch2.addConstraint(Sketcher.Constraint("Tangent", 32, 2, 33, 2))
sketch2.addConstraint(Sketcher.Constraint("Tangent", 33, 1, 34, 1))
sketch2.addConstraint(Sketcher.Constraint("Tangent", 34, 2, 35, 2))
sketch2.addConstraint(Sketcher.Constraint("Tangent", 35, 1, 36, 1))
sketch2.addConstraint(Sketcher.Constraint("Tangent", 36, 2, 37, 2))
sketch2.addConstraint(Sketcher.Constraint("Tangent", 37, 1, 38, 1))
sketch2.addConstraint(Sketcher.Constraint("Tangent", 38, 2, 39, 2))
sketch2.addConstraint(Sketcher.Constraint("Tangent", 39, 1, 32, 1))
sketch2.addConstraint(Sketcher.Constraint("Tangent", 40, 2, 41, 2))
sketch2.addConstraint(Sketcher.Constraint("Tangent", 41, 1, 42, 1))
sketch2.addConstraint(Sketcher.Constraint("Tangent", 42, 2, 43, 2))
sketch2.addConstraint(Sketcher.Constraint("Tangent", 43, 1, 44, 1))
sketch2.addConstraint(Sketcher.Constraint("Tangent", 44, 2, 45, 2))
sketch2.addConstraint(Sketcher.Constraint("Tangent", 45, 1, 46, 1))
sketch2.addConstraint(Sketcher.Constraint("Tangent", 46, 2, 47, 2))
sketch2.addConstraint(Sketcher.Constraint("Tangent", 47, 1, 40, 1))
sketch2.addConstraint(Sketcher.Constraint("Vertical", 1))
sketch2.addConstraint(Sketcher.Constraint("Horizontal", 3))
sketch2.addConstraint(Sketcher.Constraint("Vertical", 5))
sketch2.addConstraint(Sketcher.Constraint("Horizontal", 7))
sketch2.addConstraint(Sketcher.Constraint("Vertical", 9))
sketch2.addConstraint(Sketcher.Constraint("Horizontal", 11))
sketch2.addConstraint(Sketcher.Constraint("Vertical", 13))
sketch2.addConstraint(Sketcher.Constraint("Horizontal", 15))
sketch2.addConstraint(Sketcher.Constraint("Vertical", 17))
sketch2.addConstraint(Sketcher.Constraint("Horizontal", 19))
sketch2.addConstraint(Sketcher.Constraint("Vertical", 21))
sketch2.addConstraint(Sketcher.Constraint("Horizontal", 23))
sketch2.addConstraint(Sketcher.Constraint("Horizontal", 24))
sketch2.addConstraint(Sketcher.Constraint("Vertical", 26))
sketch2.addConstraint(Sketcher.Constraint("Horizontal", 28))
sketch2.addConstraint(Sketcher.Constraint("Vertical", 30))
sketch2.addConstraint(Sketcher.Constraint("Horizontal", 32))
sketch2.addConstraint(Sketcher.Constraint("Vertical", 34))
sketch2.addConstraint(Sketcher.Constraint("Horizontal", 36))
sketch2.addConstraint(Sketcher.Constraint("Vertical", 38))
sketch2.addConstraint(Sketcher.Constraint("Vertical", 40))
sketch2.addConstraint(Sketcher.Constraint("Horizontal", 42))
sketch2.addConstraint(Sketcher.Constraint("Vertical", 44))
sketch2.addConstraint(Sketcher.Constraint("Horizontal", 46))
sketch2.addConstraint(Sketcher.Constraint("Equal", 0, 2))
sketch2.addConstraint(Sketcher.Constraint("Equal", 2, 4))
sketch2.addConstraint(Sketcher.Constraint("Equal", 4, 6))
sketch2.addConstraint(Sketcher.Constraint("Equal", 6, 8))
sketch2.addConstraint(Sketcher.Constraint("Equal", 8, 10))
sketch2.addConstraint(Sketcher.Constraint("Equal", 10, 12))
sketch2.addConstraint(Sketcher.Constraint("Equal", 12, 14))
sketch2.addConstraint(Sketcher.Constraint("Equal", 16, 18))
sketch2.addConstraint(Sketcher.Constraint("Equal", 18, 20))
sketch2.addConstraint(Sketcher.Constraint("Equal", 20, 22))
sketch2.addConstraint(Sketcher.Constraint("Equal", 22, 25))
sketch2.addConstraint(Sketcher.Constraint("Equal", 25, 27))
sketch2.addConstraint(Sketcher.Constraint("Equal", 27, 29))
sketch2.addConstraint(Sketcher.Constraint("Equal", 29, 31))
sketch2.addConstraint(Sketcher.Constraint("Equal", 31, 33))
sketch2.addConstraint(Sketcher.Constraint("Equal", 33, 35))
sketch2.addConstraint(Sketcher.Constraint("Equal", 35, 37))
sketch2.addConstraint(Sketcher.Constraint("Equal", 37, 39))
sketch2.addConstraint(Sketcher.Constraint("Equal", 39, 41))
sketch2.addConstraint(Sketcher.Constraint("Equal", 41, 43))
sketch2.addConstraint(Sketcher.Constraint("Equal", 43, 45))
sketch2.addConstraint(Sketcher.Constraint("Equal", 45, 47))
sketch2.addConstraint(Sketcher.Constraint("Symmetric", 27, 1, 28, 2, -1, 1))
sketch2.addConstraint(Sketcher.Constraint("Symmetric", 23, 2, 35, 1, -1, 1))
sketch2.addConstraint(Sketcher.Constraint("Symmetric", 4, 3, 10, 3, -2))
sketch2.addConstraint(Sketcher.Constraint("Symmetric", 22, 3, 37, 3, -2))
sketch2.addConstraint(Sketcher.Constraint("Horizontal", 12, 3, 25, 3))
sketch2.addConstraint(Sketcher.Constraint("Horizontal", 20, 3, 33, 3))
sketch2.addConstraint(Sketcher.Constraint("Vertical", 31, 3, 41, 3))
sketch2.addConstraint(Sketcher.Constraint("Vertical", 27, 3, 43, 3))
sketch2.addConstraint(Sketcher.Constraint("Vertical", 1, 2, 20, 1))
sketch2.addConstraint(Sketcher.Constraint("Vertical", 13, 2, 37, 1))
sketch2.addConstraint(Sketcher.Constraint("Radius", 0, Q("5 mm")))
sketch2.addConstraint(Sketcher.Constraint("Radius", 16, Q("2.5 mm")))
sketch2.addConstraint(Sketcher.Constraint("DistanceX", 3, 2, 3, 1, Q("35 mm")))
sketch2.addConstraint(Sketcher.Constraint("DistanceX", 7, 1, 7, 2, Q("180 mm")))
sketch2.addConstraint(Sketcher.Constraint("DistanceX", 19, 1, 19, 2, Q("30 mm")))
sketch2.addConstraint(Sketcher.Constraint("DistanceX", 24, 1, 24, 2, Q("75 mm")))
sketch2.addConstraint(Sketcher.Constraint("DistanceY", 1, 2, 1, 1, Q("25 mm")))
sketch2.addConstraint(Sketcher.Constraint("DistanceY", 5, 2, 5, 1, Q("60 mm")))
sketch2.addConstraint(Sketcher.Constraint("DistanceY", 17, 1, 17, 2, Q("45 mm")))
sketch2.addConstraint(Sketcher.Constraint("DistanceY", 26, 2, 26, 1, Q("62.5 mm")))
sketch2.addConstraint(Sketcher.Constraint("DistanceY", 40, 1, 40, 2, Q("2.5 mm")))
sketch2.addConstraint(Sketcher.Constraint("DistanceY", -1, 1, 45, 3, Q("80 mm")))
pad2 = doc.addObject("PartDesign::Pad", "Pad001")
body2.addObject(pad2)
pad2.Profile = sketch2
pad2.Length = 1.5
pad2.Reversed = True
body3 = doc.addObject("PartDesign::Body", "Body002")

# Sketch on XZ plane
sketch3 = doc.addObject("Sketcher::SketchObject", "Sketch002")
body3.addObject(sketch3)
sketch3.AttachmentSupport = (doc.getObject("XZ_Plane002"), [""])
sketch3.MapMode = "FlatFace"
sketch3.addGeometry(Part.Circle(V(-45, 90, 0), V(0, 0, 1), 3), False)
sketch3.addGeometry(Part.Circle(V(-45, 90, 0), V(0, 0, 1), 1.6), False)
sketch3.addConstraint(Sketcher.Constraint("Coincident", 1, 3, 0, 3))
sketch3.addConstraint(Sketcher.Constraint("Diameter", 0, Q("6 mm")))
sketch3.addConstraint(Sketcher.Constraint("Diameter", 1, Q("3.2 mm")))
sketch3.addConstraint(Sketcher.Constraint("DistanceX", 0, 3, -1, 1, Q("45 mm")))
sketch3.addConstraint(Sketcher.Constraint("DistanceY", -1, 1, 0, 3, Q("90 mm")))
pad3 = doc.addObject("PartDesign::Pad", "Pad002")
body3.addObject(pad3)
pad3.Profile = sketch3
pad3.Type = "TwoLengths"
pad3.Length = 18.5
pad3.Length2 = 18.5
body4 = doc.addObject("PartDesign::Body", "Body003")
body4.AllowCompound = True

# Sketch on XZ plane
sketch4 = doc.addObject("Sketcher::SketchObject", "Sketch003")
body4.addObject(sketch4)
sketch4.AttachmentSupport = (doc.getObject("XZ_Plane003"), [""])
sketch4.MapMode = "FlatFace"
sketch4.addGeometry(Part.Circle(V(-90, -5, 0), V(0, 0, 1), 1.6), False)
sketch4.addGeometry(Part.Circle(V(-45, -5, 0), V(0, 0, 1), 1.6), False)
sketch4.addGeometry(Part.Circle(V(0, -5, 0), V(0, 0, 1), 1.6), False)
sketch4.addGeometry(Part.Circle(V(45, -5, 0), V(0, 0, 1), 1.6), False)
sketch4.addGeometry(Part.Circle(V(90, -5, 0), V(0, 0, 1), 1.6), False)
sketch4.addGeometry(Part.Circle(V(45, 55, 0), V(0, 0, 1), 1.6), False)
sketch4.addGeometry(Part.Circle(V(90, 55, 0), V(0, 0, 1), 1.6), False)
sketch4.addGeometry(Part.Circle(V(45, 72.5, 0), V(0, 0, 1), 1.6), False)
sketch4.addGeometry(Part.Circle(V(45, 90, 0), V(0, 0, 1), 1.6), False)
sketch4.addGeometry(Part.Circle(V(0, 90, 0), V(0, 0, 1), 1.6), False)
sketch4.addGeometry(Part.Circle(V(-45, 90, 0), V(0, 0, 1), 1.6), False)
sketch4.addGeometry(Part.Circle(V(-45, 72.5, 0), V(0, 0, 1), 1.6), False)
sketch4.addGeometry(Part.Circle(V(-45, 55, 0), V(0, 0, 1), 1.6), False)
sketch4.addGeometry(Part.Circle(V(-90, 55, 0), V(0, 0, 1), 1.6), False)
sketch4.addConstraint(Sketcher.Constraint("Equal", 0, 1))
sketch4.addConstraint(Sketcher.Constraint("Equal", 1, 2))
sketch4.addConstraint(Sketcher.Constraint("Equal", 2, 3))
sketch4.addConstraint(Sketcher.Constraint("Equal", 3, 4))
sketch4.addConstraint(Sketcher.Constraint("Equal", 4, 5))
sketch4.addConstraint(Sketcher.Constraint("Equal", 5, 6))
sketch4.addConstraint(Sketcher.Constraint("Equal", 6, 7))
sketch4.addConstraint(Sketcher.Constraint("Equal", 7, 8))
sketch4.addConstraint(Sketcher.Constraint("Equal", 8, 9))
sketch4.addConstraint(Sketcher.Constraint("Equal", 9, 10))
sketch4.addConstraint(Sketcher.Constraint("Equal", 10, 11))
sketch4.addConstraint(Sketcher.Constraint("Equal", 11, 12))
sketch4.addConstraint(Sketcher.Constraint("Equal", 12, 13))
sketch4.addConstraint(Sketcher.Constraint("Symmetric", 1, 3, 3, 3, -2))
sketch4.addConstraint(Sketcher.Constraint("Symmetric", 0, 3, 4, 3, -2))
sketch4.addConstraint(Sketcher.Constraint("Symmetric", 8, 3, 10, 3, -2))
sketch4.addConstraint(Sketcher.Constraint("Symmetric", 7, 3, 11, 3, -2))
sketch4.addConstraint(Sketcher.Constraint("Symmetric", 5, 3, 12, 3, -2))
sketch4.addConstraint(Sketcher.Constraint("Symmetric", 6, 3, 13, 3, -2))
sketch4.addConstraint(Sketcher.Constraint("PointOnObject", 2, 3, -2))
sketch4.addConstraint(Sketcher.Constraint("PointOnObject", 9, 3, -2))
sketch4.addConstraint(Sketcher.Constraint("Horizontal", 0, 3, 1, 3))
sketch4.addConstraint(Sketcher.Constraint("Horizontal", 1, 3, 2, 3))
sketch4.addConstraint(Sketcher.Constraint("Horizontal", 5, 3, 6, 3))
sketch4.addConstraint(Sketcher.Constraint("Horizontal", 8, 3, 9, 3))
sketch4.addConstraint(Sketcher.Constraint("Vertical", 3, 3, 5, 3))
sketch4.addConstraint(Sketcher.Constraint("Vertical", 4, 3, 6, 3))
sketch4.addConstraint(Sketcher.Constraint("Vertical", 5, 3, 7, 3))
sketch4.addConstraint(Sketcher.Constraint("Vertical", 7, 3, 8, 3))
sketch4.addConstraint(Sketcher.Constraint("Diameter", 0, Q("3.2 mm")))
sketch4.addConstraint(Sketcher.Constraint("DistanceX", 0, 3, -1, 1, Q("90 mm")))
sketch4.addConstraint(Sketcher.Constraint("DistanceY", 0, 3, -1, 1, Q("5 mm")))
sketch4.addConstraint(Sketcher.Constraint("DistanceX", 1, 3, -1, 1, Q("45 mm")))
sketch4.addConstraint(Sketcher.Constraint("DistanceY", -1, 1, 5, 3, Q("55 mm")))
sketch4.addConstraint(Sketcher.Constraint("DistanceY", -1, 1, 8, 3, Q("90 mm")))
sketch4.addConstraint(Sketcher.Constraint("DistanceY", -1, 1, 7, 3, Q("72.5 mm")))
pad4 = doc.addObject("PartDesign::Pad", "Pad003")
body4.addObject(pad4)
pad4.Profile = sketch4
pad4.Type = "TwoLengths"
pad4.Length = 20.001
pad4.Length2 = 20.001
doc.recompute()

body5 = doc.addObject("PartDesign::Body", "Body004")
body5.BaseFeature = body4
boolean = doc.addObject("PartDesign::Boolean", "Boolean")
body.addObject(boolean)
boolean.Type = "Cut"
boolean.addObjects([body5])
doc.recompute()

boolean2 = doc.addObject("PartDesign::Boolean", "Boolean001")
body2.addObject(boolean2)
boolean2.Type = "Cut"
boolean2.addObjects([body4])

doc.recompute()
